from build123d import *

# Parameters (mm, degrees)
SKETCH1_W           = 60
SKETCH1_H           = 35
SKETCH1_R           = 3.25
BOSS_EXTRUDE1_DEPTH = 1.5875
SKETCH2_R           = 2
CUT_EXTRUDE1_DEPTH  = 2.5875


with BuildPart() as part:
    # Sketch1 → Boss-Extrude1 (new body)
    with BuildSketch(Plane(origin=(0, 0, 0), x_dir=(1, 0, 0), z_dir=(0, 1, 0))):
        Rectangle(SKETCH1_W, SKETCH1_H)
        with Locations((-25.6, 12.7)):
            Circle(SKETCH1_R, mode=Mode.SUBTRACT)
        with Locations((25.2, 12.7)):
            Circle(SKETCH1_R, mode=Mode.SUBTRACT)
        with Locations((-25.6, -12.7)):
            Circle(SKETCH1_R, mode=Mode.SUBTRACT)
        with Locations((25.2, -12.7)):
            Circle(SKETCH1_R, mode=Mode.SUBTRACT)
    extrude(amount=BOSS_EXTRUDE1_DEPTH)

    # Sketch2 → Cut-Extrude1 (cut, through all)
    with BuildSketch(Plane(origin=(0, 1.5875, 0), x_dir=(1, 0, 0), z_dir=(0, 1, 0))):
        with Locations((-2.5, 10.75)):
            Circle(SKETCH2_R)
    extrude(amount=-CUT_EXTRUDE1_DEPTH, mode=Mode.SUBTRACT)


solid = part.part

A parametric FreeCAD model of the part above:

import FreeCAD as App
import Part
import Sketcher

V = App.Vector
Q = App.Units.Quantity

doc = App.newDocument("Part")
body = doc.addObject("PartDesign::Body", "Body")

# Sketch on XZ plane
sketch1 = body.newObject("Sketcher::SketchObject", "Sketch")
sketch1.AttachmentSupport = (doc.getObject("XZ_Plane"), [""])
sketch1.MapMode = "FlatFace"
sketch1.addGeometry(Part.LineSegment(V(-30, -17.5, 0), V(-30, 17.5, 0)), False)
sketch1.addGeometry(Part.LineSegment(V(-30, 17.5, 0), V(30, 17.5, 0)), False)
sketch1.addGeometry(Part.LineSegment(V(30, 17.5, 0), V(30, -17.5, 0)), False)
sketch1.addGeometry(Part.LineSegment(V(30, -17.5, 0), V(-30, -17.5, 0)), False)
sketch1.addGeometry(Part.Circle(V(-25.6, 12.7, 0), V(0, 0, 1), 3.2), False)
sketch1.addGeometry(Part.Circle(V(25.2, 12.7, 0), V(0, 0, 1), 3.2), False)
sketch1.addGeometry(Part.Circle(V(-25.6, -12.7, 0), V(0, 0, 1), 3.2), False)
sketch1.addGeometry(Part.Circle(V(25.2, -12.7, 0), V(0, 0, 1), 3.2), False)
sketch1.addConstraint(Sketcher.Constraint("Coincident", 0, 2, 1, 1))
sketch1.addConstraint(Sketcher.Constraint("Coincident", 1, 2, 2, 1))
sketch1.addConstraint(Sketcher.Constraint("Coincident", 2, 2, 3, 1))
sketch1.addConstraint(Sketcher.Constraint("Coincident", 3, 2, 0, 1))
sketch1.addConstraint(Sketcher.Constraint("Vertical", 0))
sketch1.addConstraint(Sketcher.Constraint("Horizontal", 1))
sketch1.addConstraint(Sketcher.Constraint("Vertical", 2))
sketch1.addConstraint(Sketcher.Constraint("Horizontal", 3))
sketch1.addConstraint(Sketcher.Constraint("Equal", 4, 5))
sketch1.addConstraint(Sketcher.Constraint("Equal", 5, 6))
sketch1.addConstraint(Sketcher.Constraint("Equal", 6, 7))
sketch1.addConstraint(Sketcher.Constraint("Symmetric", 0, 2, 2, 2, -1, 1))
sketch1.addConstraint(Sketcher.Constraint("Symmetric", 4, 3, 6, 3, -1))
sketch1.addConstraint(Sketcher.Constraint("Symmetric", 5, 3, 7, 3, -1))
sketch1.addConstraint(Sketcher.Constraint("Horizontal", 4, 3, 5, 3))
sketch1.addConstraint(Sketcher.Constraint("Diameter", 4, Q("6.5 mm")))
sketch1.addConstraint(Sketcher.Constraint("DistanceX", 1, 1, 1, 2, Q("60 mm")))
sketch1.addConstraint(Sketcher.Constraint("DistanceY", 0, 1, 0, 2, Q("35 mm")))
sketch1.addConstraint(Sketcher.Constraint("DistanceX", 4, 3, -1, 1, Q("25.6 mm")))
sketch1.addConstraint(Sketcher.Constraint("DistanceY", -1, 1, 4, 3, Q("12.7 mm")))
sketch1.addConstraint(Sketcher.Constraint("DistanceX", -1, 1, 5, 3, Q("25.2 mm")))
pad1 = body.newObject("PartDesign::Pad", "Pad")
pad1.Profile = sketch1
pad1.Length = 1.5875
pad1.Reversed = True

# Sketch on XZ plane
sketch2 = body.newObject("Sketcher::SketchObject", "Sketch001")
sketch2.AttachmentSupport = (doc.getObject("XZ_Plane"), [""])
sketch2.MapMode = "FlatFace"
sketch2.AttachmentOffset = App.Placement(V(0, 0, -1.5875), App.Rotation())
sketch2.addGeometry(Part.Circle(V(-2.5, -10.8, 0), V(0, 0, 1), 2), False)
sketch2.addConstraint(Sketcher.Constraint("Diameter", 0, Q("4 mm")))
sketch2.addConstraint(Sketcher.Constraint("DistanceX", 0, 3, -1, 1, Q("2.5 mm")))
sketch2.addConstraint(Sketcher.Constraint("DistanceY", 0, 3, -1, 1, Q("10.75 mm")))
pocket1 = body.newObject("PartDesign::Pocket", "Pocket")
pocket1.Profile = sketch2
pocket1.Type = "ThroughAll"
pocket1.Reversed = True

doc.recompute()
